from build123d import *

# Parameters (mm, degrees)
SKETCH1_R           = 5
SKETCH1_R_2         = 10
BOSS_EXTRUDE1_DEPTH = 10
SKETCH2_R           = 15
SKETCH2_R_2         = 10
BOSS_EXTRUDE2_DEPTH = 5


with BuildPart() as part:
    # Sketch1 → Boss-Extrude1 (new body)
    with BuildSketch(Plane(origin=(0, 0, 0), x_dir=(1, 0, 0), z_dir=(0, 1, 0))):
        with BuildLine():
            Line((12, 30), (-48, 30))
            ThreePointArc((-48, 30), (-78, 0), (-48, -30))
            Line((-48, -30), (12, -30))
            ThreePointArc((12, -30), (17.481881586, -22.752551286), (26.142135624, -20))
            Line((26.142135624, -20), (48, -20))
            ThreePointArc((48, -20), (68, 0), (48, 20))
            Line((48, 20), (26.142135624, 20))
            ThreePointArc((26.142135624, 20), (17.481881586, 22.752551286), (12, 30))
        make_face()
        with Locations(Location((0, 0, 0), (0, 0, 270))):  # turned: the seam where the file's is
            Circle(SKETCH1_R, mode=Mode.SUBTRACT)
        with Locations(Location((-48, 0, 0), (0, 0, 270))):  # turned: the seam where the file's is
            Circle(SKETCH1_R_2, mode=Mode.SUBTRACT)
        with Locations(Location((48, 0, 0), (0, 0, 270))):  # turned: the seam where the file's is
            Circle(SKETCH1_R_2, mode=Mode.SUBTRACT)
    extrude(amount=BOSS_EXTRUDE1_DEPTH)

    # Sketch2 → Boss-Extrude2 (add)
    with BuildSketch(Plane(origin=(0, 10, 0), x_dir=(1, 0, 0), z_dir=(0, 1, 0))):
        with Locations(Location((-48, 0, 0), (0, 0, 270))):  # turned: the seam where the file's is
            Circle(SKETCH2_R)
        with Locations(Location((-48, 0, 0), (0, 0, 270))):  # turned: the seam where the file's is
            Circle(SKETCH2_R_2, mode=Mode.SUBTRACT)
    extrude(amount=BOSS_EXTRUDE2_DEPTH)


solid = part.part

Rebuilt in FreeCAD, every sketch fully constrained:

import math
import FreeCAD as App
import Part
import Sketcher
from FreeCAD import Vector

doc = App.newDocument("Part")
body = doc.addObject("PartDesign::Body", "Body")

# Sketch on XZ plane
sketch1 = body.newObject("Sketcher::SketchObject", "Sketch")
sketch1.AttachmentSupport = (doc.getObject("XZ_Plane"), [""])
sketch1.MapMode = "FlatFace"
sketch1.addGeometry([
    Part.LineSegment(Vector(12, -30, 0), Vector(-48, -30, 0)),  # 0
    Part.ArcOfCircle(Part.Circle(Vector(-48, 0, 0), Vector(0, 0, 1), 30), math.radians(90), math.radians(270)),  # 1
    Part.LineSegment(Vector(-48, 30, 0), Vector(12, 30, 0)),  # 2
    Part.ArcOfCircle(Part.Circle(Vector(26, 35, 0), Vector(0, 0, 1), 15), math.radians(-161), math.radians(-90)),  # 3
    Part.LineSegment(Vector(26, 20, 0), Vector(48, 20, 0)),  # 4
    Part.ArcOfCircle(Part.Circle(Vector(48, 0, 0), Vector(0, 0, 1), 20), math.radians(-90), math.radians(90)),  # 5
    Part.LineSegment(Vector(48, -20, 0), Vector(26, -20, 0)),  # 6
    Part.ArcOfCircle(Part.Circle(Vector(26, -35, 0), Vector(0, 0, 1), 15), math.radians(90), math.radians(161)),  # 7
    Part.Circle(Vector(-48, 0, 0), Vector(0, 0, 1), 10),  # 8
    Part.Circle(Vector(0, 0, 0), Vector(0, 0, 1), 5),  # 9
    Part.Circle(Vector(48, 0, 0), Vector(0, 0, 1), 10),  # 10
], False)
sketch1.addConstraint([
    Sketcher.Constraint("Tangent", 0, 2, 1, 2),
    Sketcher.Constraint("Tangent", 1, 1, 2, 1),
    Sketcher.Constraint("Coincident", 2, 2, 3, 1),
    Sketcher.Constraint("Tangent", 3, 2, 4, 1),
    Sketcher.Constraint("Tangent", 4, 2, 5, 2),
    Sketcher.Constraint("Tangent", 5, 1, 6, 1),
    Sketcher.Constraint("Tangent", 6, 2, 7, 1),
    Sketcher.Constraint("Coincident", 7, 2, 0, 1),
    Sketcher.Constraint("Horizontal", 0),
    Sketcher.Constraint("Horizontal", 2),
    Sketcher.Constraint("Horizontal", 4),
    Sketcher.Constraint("Horizontal", 6),
    Sketcher.Constraint("Coincident", 9, 3, -1, 1),
    Sketcher.Constraint("Coincident", 8, 3, 1, 3),
    Sketcher.Constraint("Coincident", 10, 3, 5, 3),
    Sketcher.Constraint("Equal", 3, 7),
    Sketcher.Constraint("Equal", 8, 10),
    Sketcher.Constraint("Symmetric", 1, 3, 5, 3, -1, 1),
    Sketcher.Constraint("Symmetric", 3, 3, 7, 3, -1),
    Sketcher.Constraint("Diameter", 8, 20.0),
    Sketcher.Constraint("Diameter", 9, 10.0),
    Sketcher.Constraint("Radius", 1, 30.0),
    Sketcher.Constraint("Radius", 3, 15.0),
    Sketcher.Constraint("Radius", 5, 20.0),
    Sketcher.Constraint("DistanceX", 0, 2, 0, 1, 60.0),
    Sketcher.Constraint("DistanceX", 1, 3, -1, 1, 48.0),
])
pad1 = body.newObject("PartDesign::Pad", "Pad")
pad1.Profile = sketch1
pad1.Length = 10
pad1.Reversed = True

# Sketch on XZ plane
sketch2 = body.newObject("Sketcher::SketchObject", "Sketch001")
sketch2.AttachmentSupport = (doc.getObject("XZ_Plane"), [""])
sketch2.MapMode = "FlatFace"
sketch2.AttachmentOffset = App.Placement(Vector(0, 0, -10), App.Rotation())
sketch2.addGeometry([
    Part.Circle(Vector(-48, 0, 0), Vector(0, 0, 1), 15),
    Part.Circle(Vector(-48, 0, 0), Vector(0, 0, 1), 10),
], False)
sketch2.addConstraint([
    Sketcher.Constraint("Coincident", 1, 3, 0, 3),
    Sketcher.Constraint("PointOnObject", 0, 3, -1),
    Sketcher.Constraint("Diameter", 0, 30.0),
    Sketcher.Constraint("Diameter", 1, 20.0),
    Sketcher.Constraint("DistanceX", 0, 3, -1, 1, 48.0),
])
pad2 = body.newObject("PartDesign::Pad", "Pad001")
pad2.Profile = sketch2
pad2.Length = 5
pad2.Reversed = True

doc.recompute()
